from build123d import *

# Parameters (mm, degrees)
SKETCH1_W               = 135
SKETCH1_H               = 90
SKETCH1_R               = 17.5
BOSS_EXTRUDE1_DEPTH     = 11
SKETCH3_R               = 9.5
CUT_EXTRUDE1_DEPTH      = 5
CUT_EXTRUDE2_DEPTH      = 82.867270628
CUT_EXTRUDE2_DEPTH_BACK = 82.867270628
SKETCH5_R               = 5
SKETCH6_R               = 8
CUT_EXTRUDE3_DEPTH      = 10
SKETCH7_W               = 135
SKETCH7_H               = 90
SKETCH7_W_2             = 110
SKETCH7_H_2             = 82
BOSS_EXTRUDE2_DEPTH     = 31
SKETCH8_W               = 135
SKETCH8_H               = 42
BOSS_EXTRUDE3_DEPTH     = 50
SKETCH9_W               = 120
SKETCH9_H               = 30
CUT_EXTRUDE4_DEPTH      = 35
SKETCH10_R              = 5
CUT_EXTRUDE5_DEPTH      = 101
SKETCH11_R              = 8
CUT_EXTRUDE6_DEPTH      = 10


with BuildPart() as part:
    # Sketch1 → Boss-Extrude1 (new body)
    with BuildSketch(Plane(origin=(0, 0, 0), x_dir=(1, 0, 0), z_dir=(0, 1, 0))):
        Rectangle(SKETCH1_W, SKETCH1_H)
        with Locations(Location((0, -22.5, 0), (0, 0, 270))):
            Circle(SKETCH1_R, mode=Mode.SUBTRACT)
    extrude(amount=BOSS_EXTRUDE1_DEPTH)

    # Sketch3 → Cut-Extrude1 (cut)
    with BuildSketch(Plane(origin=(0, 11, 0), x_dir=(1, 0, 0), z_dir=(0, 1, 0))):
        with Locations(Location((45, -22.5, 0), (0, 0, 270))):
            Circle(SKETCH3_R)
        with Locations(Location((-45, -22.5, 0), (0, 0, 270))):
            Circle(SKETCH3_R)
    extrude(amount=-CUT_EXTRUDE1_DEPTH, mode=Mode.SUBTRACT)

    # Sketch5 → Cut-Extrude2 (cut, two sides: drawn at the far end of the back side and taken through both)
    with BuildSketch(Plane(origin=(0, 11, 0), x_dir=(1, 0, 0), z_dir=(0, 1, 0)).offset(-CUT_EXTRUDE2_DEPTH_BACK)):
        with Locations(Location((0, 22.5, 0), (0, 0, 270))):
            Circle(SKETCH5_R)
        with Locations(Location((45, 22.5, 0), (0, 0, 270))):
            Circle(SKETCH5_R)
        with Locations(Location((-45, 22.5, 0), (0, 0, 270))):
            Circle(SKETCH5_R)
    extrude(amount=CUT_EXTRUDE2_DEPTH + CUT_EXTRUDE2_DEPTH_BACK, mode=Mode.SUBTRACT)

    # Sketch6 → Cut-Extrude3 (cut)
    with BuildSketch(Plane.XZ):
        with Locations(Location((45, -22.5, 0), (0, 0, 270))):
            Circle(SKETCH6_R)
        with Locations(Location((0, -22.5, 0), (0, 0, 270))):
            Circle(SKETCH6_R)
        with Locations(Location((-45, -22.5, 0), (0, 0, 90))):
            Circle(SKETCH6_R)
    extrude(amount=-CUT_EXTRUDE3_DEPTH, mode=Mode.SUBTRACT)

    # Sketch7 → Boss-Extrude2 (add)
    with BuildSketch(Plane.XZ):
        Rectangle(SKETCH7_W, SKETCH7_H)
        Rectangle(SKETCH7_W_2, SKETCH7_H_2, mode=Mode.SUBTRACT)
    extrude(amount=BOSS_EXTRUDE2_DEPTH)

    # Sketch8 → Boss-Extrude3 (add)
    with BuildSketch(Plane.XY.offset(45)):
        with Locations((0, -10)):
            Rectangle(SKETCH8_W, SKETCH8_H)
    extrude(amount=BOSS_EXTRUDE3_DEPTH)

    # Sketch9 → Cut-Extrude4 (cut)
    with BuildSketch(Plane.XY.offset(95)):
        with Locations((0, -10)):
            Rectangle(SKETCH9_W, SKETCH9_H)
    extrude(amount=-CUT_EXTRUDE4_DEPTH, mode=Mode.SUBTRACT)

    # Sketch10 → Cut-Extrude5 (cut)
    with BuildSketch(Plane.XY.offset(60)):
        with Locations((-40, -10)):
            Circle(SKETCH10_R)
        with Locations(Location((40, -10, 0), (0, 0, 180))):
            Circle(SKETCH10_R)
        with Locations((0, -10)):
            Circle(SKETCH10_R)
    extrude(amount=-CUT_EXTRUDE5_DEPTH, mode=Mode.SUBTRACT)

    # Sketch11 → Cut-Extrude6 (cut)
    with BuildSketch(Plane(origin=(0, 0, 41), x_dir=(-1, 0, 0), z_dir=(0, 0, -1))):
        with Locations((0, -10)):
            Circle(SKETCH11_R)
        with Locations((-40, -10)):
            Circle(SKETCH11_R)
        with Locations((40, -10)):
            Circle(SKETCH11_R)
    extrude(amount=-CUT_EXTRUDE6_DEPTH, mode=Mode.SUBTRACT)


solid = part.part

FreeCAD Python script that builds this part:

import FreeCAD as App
import Part
import Sketcher


def add_polygon(sketch, points):
    """Adds a closed chain of lines whose ends are joined by coincident constraints."""
    first, n = sketch.GeometryCount, len(points)
    for a, b in zip(points, points[1:] + points[:1]):
        sketch.addGeometry(Part.LineSegment(App.Vector(*a, 0), App.Vector(*b, 0)), False)
    for i in range(n):
        sketch.addConstraint(Sketcher.Constraint("Coincident", first + i, 2, first + (i + 1) % n, 1))

doc = App.newDocument("Part")
body = doc.addObject("PartDesign::Body", "Body")

sketch1 = body.newObject("Sketcher::SketchObject", "Sketch")
sketch1.AttachmentSupport = (doc.getObject("XZ_Plane"), [""])
sketch1.MapMode = "FlatFace"
add_polygon(sketch1, [(-68, -45), (-68, 45), (68, 45), (68, -45)])
sketch1.addGeometry(Part.Circle(App.Vector(0, 22, 0), App.Vector(0, 0, 1), 18), False)
sketch1.addConstraint(Sketcher.Constraint("Vertical", 0))
sketch1.addConstraint(Sketcher.Constraint("Horizontal", 1))
sketch1.addConstraint(Sketcher.Constraint("Vertical", 2))
sketch1.addConstraint(Sketcher.Constraint("Horizontal", 3))
sketch1.addConstraint(Sketcher.Constraint("Symmetric", 0, 2, 2, 2, -1, 1))
sketch1.addConstraint(Sketcher.Constraint("PointOnObject", 4, 3, -2))
sketch1.addConstraint(Sketcher.Constraint("Diameter", 4, 35.0))
sketch1.addConstraint(Sketcher.Constraint("DistanceX", 1, 1, 1, 2, 135.0))
sketch1.addConstraint(Sketcher.Constraint("DistanceY", 0, 1, 0, 2, 90.0))
sketch1.addConstraint(Sketcher.Constraint("DistanceY", -1, 1, 4, 3, 22.5))
pad1 = body.newObject("PartDesign::Pad", "Pad")
pad1.Profile = sketch1
pad1.Length = 11
pad1.Reversed = True

sketch2 = body.newObject("Sketcher::SketchObject", "Sketch001")
sketch2.AttachmentSupport = (doc.getObject("XZ_Plane"), [""])
sketch2.MapMode = "FlatFace"
sketch2.AttachmentOffset = App.Placement(App.Vector(0, 0, -11), App.Rotation())
sketch2.addGeometry(Part.Circle(App.Vector(45, 22, 0), App.Vector(0, 0, 1), 10), False)
sketch2.addGeometry(Part.Circle(App.Vector(-45, 22, 0), App.Vector(0, 0, 1), 10), False)
sketch2.addConstraint(Sketcher.Constraint("Equal", 0, 1))
sketch2.addConstraint(Sketcher.Constraint("Symmetric", 0, 3, 1, 3, -2))
sketch2.addConstraint(Sketcher.Constraint("Diameter", 0, 19.0))
sketch2.addConstraint(Sketcher.Constraint("DistanceX", -1, 1, 0, 3, 45.0))
sketch2.addConstraint(Sketcher.Constraint("DistanceY", -1, 1, 0, 3, 22.5))
pocket1 = body.newObject("PartDesign::Pocket", "Pocket")
pocket1.Profile = sketch2
pocket1.Length = 5
pocket1.Reversed = True

sketch3 = body.newObject("Sketcher::SketchObject", "Sketch002")
sketch3.AttachmentSupport = (doc.getObject("XZ_Plane"), [""])
sketch3.MapMode = "FlatFace"
sketch3.AttachmentOffset = App.Placement(App.Vector(0, 0, -11), App.Rotation())
sketch3.addGeometry(Part.Circle(App.Vector(0, -22, 0), App.Vector(0, 0, 1), 5), False)
sketch3.addGeometry(Part.Circle(App.Vector(45, -22, 0), App.Vector(0, 0, 1), 5), False)
sketch3.addGeometry(Part.Circle(App.Vector(-45, -22, 0), App.Vector(0, 0, 1), 5), False)
sketch3.addConstraint(Sketcher.Constraint("Equal", 0, 1))
sketch3.addConstraint(Sketcher.Constraint("Equal", 1, 2))
sketch3.addConstraint(Sketcher.Constraint("Symmetric", 1, 3, 2, 3, -2))
sketch3.addConstraint(Sketcher.Constraint("PointOnObject", 0, 3, -2))
sketch3.addConstraint(Sketcher.Constraint("Horizontal", 0, 3, 1, 3))
sketch3.addConstraint(Sketcher.Constraint("Diameter", 0, 10.0))
sketch3.addConstraint(Sketcher.Constraint("DistanceX", -1, 1, 1, 3, 45.0))
sketch3.addConstraint(Sketcher.Constraint("DistanceY", 0, 3, -1, 1, 22.5))
pocket2 = body.newObject("PartDesign::Pocket", "Pocket001")
pocket2.Profile = sketch3
pocket2.Type = "ThroughAll"
pocket2.Midplane = True

sketch4 = body.newObject("Sketcher::SketchObject", "Sketch003")
sketch4.AttachmentSupport = (doc.getObject("XZ_Plane"), [""])
sketch4.MapMode = "FlatFace"
sketch4.addGeometry(Part.Circle(App.Vector(45, -22, 0), App.Vector(0, 0, 1), 8), False)
sketch4.addGeometry(Part.Circle(App.Vector(0, -22, 0), App.Vector(0, 0, 1), 8), False)
sketch4.addGeometry(Part.Circle(App.Vector(-45, -22, 0), App.Vector(0, 0, 1), 8), False)
sketch4.addConstraint(Sketcher.Constraint("Equal", 0, 1))
sketch4.addConstraint(Sketcher.Constraint("Equal", 1, 2))
sketch4.addConstraint(Sketcher.Constraint("Symmetric", 0, 3, 2, 3, -2))
sketch4.addConstraint(Sketcher.Constraint("PointOnObject", 1, 3, -2))
sketch4.addConstraint(Sketcher.Constraint("Horizontal", 0, 3, 1, 3))
sketch4.addConstraint(Sketcher.Constraint("Diameter", 0, 16.0))
sketch4.addConstraint(Sketcher.Constraint("DistanceX", -1, 1, 0, 3, 45.0))
sketch4.addConstraint(Sketcher.Constraint("DistanceY", 0, 3, -1, 1, 22.5))
pocket3 = body.newObject("PartDesign::Pocket", "Pocket002")
pocket3.Profile = sketch4
pocket3.Length = 10

sketch5 = body.newObject("Sketcher::SketchObject", "Sketch004")
sketch5.AttachmentSupport = (doc.getObject("XZ_Plane"), [""])
sketch5.MapMode = "FlatFace"
add_polygon(sketch5, [(-68, 45), (-68, -45), (68, -45), (68, 45)])
add_polygon(sketch5, [(55, -41), (-55, -41), (-55, 41), (55, 41)])
sketch5.addConstraint(Sketcher.Constraint("Vertical", 0))
sketch5.addConstraint(Sketcher.Constraint("Horizontal", 1))
sketch5.addConstraint(Sketcher.Constraint("Vertical", 2))
sketch5.addConstraint(Sketcher.Constraint("Horizontal", 3))
sketch5.addConstraint(Sketcher.Constraint("Horizontal", 4))
sketch5.addConstraint(Sketcher.Constraint("Vertical", 5))
sketch5.addConstraint(Sketcher.Constraint("Horizontal", 6))
sketch5.addConstraint(Sketcher.Constraint("Vertical", 7))
sketch5.addConstraint(Sketcher.Constraint("Symmetric", 0, 2, 2, 2, -1, 1))
sketch5.addConstraint(Sketcher.Constraint("Symmetric", 4, 2, 6, 2, -1, 1))
sketch5.addConstraint(Sketcher.Constraint("DistanceX", 1, 1, 1, 2, 135.0))
sketch5.addConstraint(Sketcher.Constraint("DistanceX", 4, 2, 4, 1, 110.0))
sketch5.addConstraint(Sketcher.Constraint("DistanceY", 0, 2, 0, 1, 90.0))
sketch5.addConstraint(Sketcher.Constraint("DistanceY", 5, 1, 5, 2, 82.0))
pad2 = body.newObject("PartDesign::Pad", "Pad001")
pad2.Profile = sketch5
pad2.Length = 31

sketch6 = body.newObject("Sketcher::SketchObject", "Sketch005")
sketch6.AttachmentSupport = (doc.getObject("XY_Plane"), [""])
sketch6.MapMode = "FlatFace"
sketch6.AttachmentOffset = App.Placement(App.Vector(0, 0, 45), App.Rotation())
add_polygon(sketch6, [(-68, 11), (-68, -31), (68, -31), (68, 11)])
sketch6.addConstraint(Sketcher.Constraint("Vertical", 0))
sketch6.addConstraint(Sketcher.Constraint("Horizontal", 1))
sketch6.addConstraint(Sketcher.Constraint("Vertical", 2))
sketch6.addConstraint(Sketcher.Constraint("Horizontal", 3))
sketch6.addConstraint(Sketcher.Constraint("DistanceX", 1, 1, 1, 2, 135.0))
sketch6.addConstraint(Sketcher.Constraint("DistanceY", 0, 2, 0, 1, 42.0))
sketch6.addConstraint(Sketcher.Constraint("DistanceY", 0, 2, -1, 1, 31.0))
sketch6.addConstraint(Sketcher.Constraint("DistanceX", 0, 2, -1, 1, 67.5))
pad3 = body.newObject("PartDesign::Pad", "Pad002")
pad3.Profile = sketch6
pad3.Length = 50

sketch7 = body.newObject("Sketcher::SketchObject", "Sketch006")
sketch7.AttachmentSupport = (doc.getObject("XY_Plane"), [""])
sketch7.MapMode = "FlatFace"
sketch7.AttachmentOffset = App.Placement(App.Vector(0, 0, 95), App.Rotation())
add_polygon(sketch7, [(-60, 5), (-60, -25), (60, -25), (60, 5)])
sketch7.addConstraint(Sketcher.Constraint("Vertical", 0))
sketch7.addConstraint(Sketcher.Constraint("Horizontal", 1))
sketch7.addConstraint(Sketcher.Constraint("Vertical", 2))
sketch7.addConstraint(Sketcher.Constraint("Horizontal", 3))
sketch7.addConstraint(Sketcher.Constraint("DistanceX", 1, 1, 1, 2, 120.0))
sketch7.addConstraint(Sketcher.Constraint("DistanceY", 0, 2, 0, 1, 30.0))
sketch7.addConstraint(Sketcher.Constraint("DistanceX", 0, 2, -1, 1, 60.0))
sketch7.addConstraint(Sketcher.Constraint("DistanceY", 0, 2, -1, 1, 25.0))
pocket4 = body.newObject("PartDesign::Pocket", "Pocket003")
pocket4.Profile = sketch7
pocket4.Length = 35

sketch8 = body.newObject("Sketcher::SketchObject", "Sketch007")
sketch8.AttachmentSupport = (doc.getObject("XY_Plane"), [""])
sketch8.MapMode = "FlatFace"
sketch8.AttachmentOffset = App.Placement(App.Vector(0, 0, 60), App.Rotation())
sketch8.addGeometry(Part.Circle(App.Vector(-40, -10, 0), App.Vector(0, 0, 1), 5), False)
sketch8.addGeometry(Part.Circle(App.Vector(40, -10, 0), App.Vector(0, 0, 1), 5), False)
sketch8.addGeometry(Part.Circle(App.Vector(0, -10, 0), App.Vector(0, 0, 1), 5), False)
sketch8.addConstraint(Sketcher.Constraint("Equal", 0, 1))
sketch8.addConstraint(Sketcher.Constraint("Equal", 1, 2))
sketch8.addConstraint(Sketcher.Constraint("Symmetric", 0, 3, 1, 3, -2))
sketch8.addConstraint(Sketcher.Constraint("PointOnObject", 2, 3, -2))
sketch8.addConstraint(Sketcher.Constraint("Horizontal", 1, 3, 2, 3))
sketch8.addConstraint(Sketcher.Constraint("Diameter", 0, 10.0))
sketch8.addConstraint(Sketcher.Constraint("DistanceX", 0, 3, -1, 1, 40.0))
sketch8.addConstraint(Sketcher.Constraint("DistanceY", 0, 3, -1, 1, 10.0))
pocket5 = body.newObject("PartDesign::Pocket", "Pocket004")
pocket5.Profile = sketch8
pocket5.Length = 101

sketch9 = body.newObject("Sketcher::SketchObject", "Sketch008")
sketch9.AttachmentSupport = (doc.getObject("XY_Plane"), [""])
sketch9.MapMode = "FlatFace"
sketch9.AttachmentOffset = App.Placement(App.Vector(0, 0, 41), App.Rotation())
sketch9.addGeometry(Part.Circle(App.Vector(0, -10, 0), App.Vector(0, 0, 1), 8), False)
sketch9.addGeometry(Part.Circle(App.Vector(40, -10, 0), App.Vector(0, 0, 1), 8), False)
sketch9.addGeometry(Part.Circle(App.Vector(-40, -10, 0), App.Vector(0, 0, 1), 8), False)
sketch9.addConstraint(Sketcher.Constraint("Equal", 0, 1))
sketch9.addConstraint(Sketcher.Constraint("Equal", 1, 2))
sketch9.addConstraint(Sketcher.Constraint("Symmetric", 1, 3, 2, 3, -2))
sketch9.addConstraint(Sketcher.Constraint("PointOnObject", 0, 3, -2))
sketch9.addConstraint(Sketcher.Constraint("Horizontal", 0, 3, 1, 3))
sketch9.addConstraint(Sketcher.Constraint("Diameter", 0, 16.0))
sketch9.addConstraint(Sketcher.Constraint("DistanceY", 0, 3, -1, 1, 10.0))
sketch9.addConstraint(Sketcher.Constraint("DistanceX", -1, 1, 1, 3, 40.0))
pocket6 = body.newObject("PartDesign::Pocket", "Pocket005")
pocket6.Profile = sketch9
pocket6.Length = 10
pocket6.Reversed = True

doc.recompute()
